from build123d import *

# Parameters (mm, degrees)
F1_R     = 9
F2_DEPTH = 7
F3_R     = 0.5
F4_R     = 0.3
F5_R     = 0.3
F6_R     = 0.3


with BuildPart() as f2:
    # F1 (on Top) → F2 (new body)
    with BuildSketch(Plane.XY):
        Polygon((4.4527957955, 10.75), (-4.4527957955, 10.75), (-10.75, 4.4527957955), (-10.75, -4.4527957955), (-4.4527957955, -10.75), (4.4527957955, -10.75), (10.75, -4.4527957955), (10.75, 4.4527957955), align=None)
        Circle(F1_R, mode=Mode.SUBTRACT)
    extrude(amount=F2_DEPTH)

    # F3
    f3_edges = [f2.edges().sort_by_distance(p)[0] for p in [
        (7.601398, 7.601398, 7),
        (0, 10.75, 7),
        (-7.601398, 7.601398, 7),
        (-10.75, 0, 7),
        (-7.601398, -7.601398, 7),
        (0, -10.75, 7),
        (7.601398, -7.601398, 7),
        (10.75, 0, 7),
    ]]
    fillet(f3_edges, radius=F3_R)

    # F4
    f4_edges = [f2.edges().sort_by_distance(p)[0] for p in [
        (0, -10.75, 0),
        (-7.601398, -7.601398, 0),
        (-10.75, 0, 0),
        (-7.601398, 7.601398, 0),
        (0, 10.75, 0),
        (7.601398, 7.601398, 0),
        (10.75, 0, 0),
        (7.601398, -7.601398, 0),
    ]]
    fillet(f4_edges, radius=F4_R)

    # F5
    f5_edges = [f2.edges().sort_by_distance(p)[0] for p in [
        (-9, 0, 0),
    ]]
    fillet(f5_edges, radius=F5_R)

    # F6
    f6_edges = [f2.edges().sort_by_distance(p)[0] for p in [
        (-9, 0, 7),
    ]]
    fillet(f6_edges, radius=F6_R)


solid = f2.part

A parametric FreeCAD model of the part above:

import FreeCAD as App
import Part
import Sketcher
from FreeCAD import Vector
Q = App.Units.Quantity


def edges_at(feature, points):
    """Names of the edges that pass closest to the given points."""
    edges = feature.Shape.Edges
    near = lambda p: min(range(len(edges)), key=lambda i: edges[i].distToShape(Part.Vertex(*p))[0])
    return sorted({f"Edge{near(p) + 1}" for p in points})


def add_polygon(sketch, points):
    """Adds a closed chain of lines whose ends are joined by coincident constraints."""
    first, n = sketch.GeometryCount, len(points)
    for a, b in zip(points, points[1:] + points[:1]):
        sketch.addGeometry(Part.LineSegment(App.Vector(*a, 0), App.Vector(*b, 0)), False)
    for i in range(n):
        sketch.addConstraint(Sketcher.Constraint("Coincident", first + i, 2, first + (i + 1) % n, 1))

doc = App.newDocument("Part")
body = doc.addObject("PartDesign::Body", "Body")

sketch1 = body.newObject("Sketcher::SketchObject", "Sketch")
sketch1.AttachmentSupport = (doc.getObject("XY_Plane"), [""])
sketch1.MapMode = "FlatFace"
add_polygon(sketch1, [(4.452796, 10.75), (-4.452796, 10.75), (-10.75, 4.452796), (-10.75, -4.452796), (-4.452796, -10.75), (4.452796, -10.75), (10.75, -4.452796), (10.75, 4.452796)])
sketch1.addGeometry(Part.Circle(Vector(0, 0, 0), Vector(0, 0, 1), 9), False)
sketch1.addConstraint([
    Sketcher.Constraint("Horizontal", 0),
    Sketcher.Constraint("Vertical", 2),
    Sketcher.Constraint("Horizontal", 4),
    Sketcher.Constraint("Vertical", 6),
    Sketcher.Constraint("Coincident", 8, 3, -1, 1),
    Sketcher.Constraint("Symmetric", 0, 2, 4, 2, -1, 1),
    Sketcher.Constraint("Symmetric", 1, 2, 5, 2, -1, 1),
    Sketcher.Constraint("Perpendicular", 1, 3),
    Sketcher.Constraint("Perpendicular", 5, 7),
    Sketcher.Constraint("Horizontal", 2, 2, 5, 2),
    Sketcher.Constraint("Horizontal", 1, 2, 6, 2),
    Sketcher.Constraint("Vertical", 0, 2, 3, 2),
    Sketcher.Constraint("Equal", 4, 2),
    Sketcher.Constraint("Diameter", 8, Q("18 mm")),
    Sketcher.Constraint("DistanceY", 3, 2, 0, 2, Q("21.5 mm")),
    Sketcher.Constraint("DistanceX", 0, 2, 0, 1, Q("8.905592 mm")),
])
pad1 = body.newObject("PartDesign::Pad", "Pad")
pad1.Profile = sketch1
pad1.Length = 7
doc.recompute()

fillet = body.newObject("PartDesign::Fillet", "Fillet")
fillet.Base = (pad1, edges_at(pad1, [
    (7.601, 7.601, 7),
    (0, 10.75, 7),
    (-7.601, 7.601, 7),
    (-10.75, 0, 7),
    (-7.601, -7.601, 7),
    (0, -10.75, 7),
    (7.601, -7.601, 7),
    (10.75, 0, 7),
]))
fillet.Radius = 0.5
doc.recompute()

fillet2 = body.newObject("PartDesign::Fillet", "Fillet001")
fillet2.Base = (fillet, edges_at(fillet, [
    (0, -10.75, 0),
    (-7.601, -7.601, 0),
    (-10.75, 0, 0),
    (-7.601, 7.601, 0),
    (0, 10.75, 0),
    (7.601, 7.601, 0),
    (10.75, 0, 0),
    (7.601, -7.601, 0),
]))
fillet2.Radius = 0.3
doc.recompute()

fillet3 = body.newObject("PartDesign::Fillet", "Fillet002")
fillet3.Base = (fillet2, edges_at(fillet2, [(-9, 0, 0)]))
fillet3.Radius = 0.3
doc.recompute()

fillet4 = body.newObject("PartDesign::Fillet", "Fillet003")
fillet4.Base = (fillet3, edges_at(fillet3, [(-9, 0, 7)]))
fillet4.Radius = 0.3

doc.recompute()
